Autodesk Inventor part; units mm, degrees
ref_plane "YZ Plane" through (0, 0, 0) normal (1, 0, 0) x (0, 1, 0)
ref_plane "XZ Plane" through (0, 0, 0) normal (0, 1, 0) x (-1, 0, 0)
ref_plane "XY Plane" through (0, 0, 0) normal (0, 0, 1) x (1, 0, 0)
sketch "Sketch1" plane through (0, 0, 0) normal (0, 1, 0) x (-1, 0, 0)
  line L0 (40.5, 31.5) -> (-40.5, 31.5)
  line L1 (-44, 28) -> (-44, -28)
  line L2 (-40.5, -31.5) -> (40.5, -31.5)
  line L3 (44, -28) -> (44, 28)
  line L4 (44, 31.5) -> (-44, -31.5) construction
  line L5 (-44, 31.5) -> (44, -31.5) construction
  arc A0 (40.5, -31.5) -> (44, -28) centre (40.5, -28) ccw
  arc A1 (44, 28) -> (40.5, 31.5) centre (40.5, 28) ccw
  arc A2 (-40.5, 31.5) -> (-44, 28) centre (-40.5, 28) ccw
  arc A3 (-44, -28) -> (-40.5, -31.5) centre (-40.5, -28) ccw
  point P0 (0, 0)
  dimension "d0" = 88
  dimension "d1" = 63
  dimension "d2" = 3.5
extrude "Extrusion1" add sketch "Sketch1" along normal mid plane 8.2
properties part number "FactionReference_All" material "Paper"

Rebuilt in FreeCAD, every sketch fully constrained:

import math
import FreeCAD as App
import Part
import Sketcher
Q = App.Units.Quantity

doc = App.newDocument("Part")
body = doc.addObject("PartDesign::Body", "Body")

# Sketch on XZ plane
sketch1 = body.newObject("Sketcher::SketchObject", "Sketch")
sketch1.AttachmentSupport = (doc.getObject("XZ_Plane"), [""])
sketch1.MapMode = "FlatFace"
sketch1.addGeometry([
    Part.ArcOfCircle(Part.Circle(App.Vector(-40.5, 28, 0), App.Vector(0, 0, 1), 3.5), math.radians(90), math.radians(180)),  # 0
    Part.LineSegment(App.Vector(-40.5, 31.5, 0), App.Vector(40.5, 31.5, 0)),  # 1
    Part.ArcOfCircle(Part.Circle(App.Vector(40.5, 28, 0), App.Vector(0, 0, 1), 3.5), math.radians(0), math.radians(90)),  # 2
    Part.LineSegment(App.Vector(44, 28, 0), App.Vector(44, -28, 0)),  # 3
    Part.ArcOfCircle(Part.Circle(App.Vector(40.5, -28, 0), App.Vector(0, 0, 1), 3.5), math.radians(-90), math.radians(0)),  # 4
    Part.LineSegment(App.Vector(40.5, -31.5, 0), App.Vector(-40.5, -31.5, 0)),  # 5
    Part.ArcOfCircle(Part.Circle(App.Vector(-40.5, -28, 0), App.Vector(0, 0, 1), 3.5), math.radians(180), math.radians(270)),  # 6
    Part.LineSegment(App.Vector(-44, -28, 0), App.Vector(-44, 28, 0)),  # 7
], False)
sketch1.addConstraint([
    Sketcher.Constraint("Tangent", 0, 1, 1, 1),
    Sketcher.Constraint("Tangent", 1, 2, 2, 2),
    Sketcher.Constraint("Tangent", 2, 1, 3, 1),
    Sketcher.Constraint("Tangent", 3, 2, 4, 2),
    Sketcher.Constraint("Tangent", 4, 1, 5, 1),
    Sketcher.Constraint("Tangent", 5, 2, 6, 2),
    Sketcher.Constraint("Tangent", 6, 1, 7, 1),
    Sketcher.Constraint("Tangent", 7, 2, 0, 2),
    Sketcher.Constraint("Horizontal", 1),
    Sketcher.Constraint("Vertical", 3),
    Sketcher.Constraint("Horizontal", 5),
    Sketcher.Constraint("Vertical", 7),
    Sketcher.Constraint("Equal", 0, 2),
    Sketcher.Constraint("Equal", 2, 4),
    Sketcher.Constraint("Equal", 4, 6),
    Sketcher.Constraint("Symmetric", 0, 3, 4, 3, -1, 1),
    Sketcher.Constraint("Radius", 0, Q("3.5 mm")),
    Sketcher.Constraint("DistanceY", 4, 1, 1, 2, Q("63 mm")),
    Sketcher.Constraint("DistanceX", 1, 1, 1, 2, Q("81 mm")),
])
pad1 = body.newObject("PartDesign::Pad", "Pad")
pad1.Profile = sketch1
pad1.Length = 8.2
pad1.Midplane = True

doc.recompute()
